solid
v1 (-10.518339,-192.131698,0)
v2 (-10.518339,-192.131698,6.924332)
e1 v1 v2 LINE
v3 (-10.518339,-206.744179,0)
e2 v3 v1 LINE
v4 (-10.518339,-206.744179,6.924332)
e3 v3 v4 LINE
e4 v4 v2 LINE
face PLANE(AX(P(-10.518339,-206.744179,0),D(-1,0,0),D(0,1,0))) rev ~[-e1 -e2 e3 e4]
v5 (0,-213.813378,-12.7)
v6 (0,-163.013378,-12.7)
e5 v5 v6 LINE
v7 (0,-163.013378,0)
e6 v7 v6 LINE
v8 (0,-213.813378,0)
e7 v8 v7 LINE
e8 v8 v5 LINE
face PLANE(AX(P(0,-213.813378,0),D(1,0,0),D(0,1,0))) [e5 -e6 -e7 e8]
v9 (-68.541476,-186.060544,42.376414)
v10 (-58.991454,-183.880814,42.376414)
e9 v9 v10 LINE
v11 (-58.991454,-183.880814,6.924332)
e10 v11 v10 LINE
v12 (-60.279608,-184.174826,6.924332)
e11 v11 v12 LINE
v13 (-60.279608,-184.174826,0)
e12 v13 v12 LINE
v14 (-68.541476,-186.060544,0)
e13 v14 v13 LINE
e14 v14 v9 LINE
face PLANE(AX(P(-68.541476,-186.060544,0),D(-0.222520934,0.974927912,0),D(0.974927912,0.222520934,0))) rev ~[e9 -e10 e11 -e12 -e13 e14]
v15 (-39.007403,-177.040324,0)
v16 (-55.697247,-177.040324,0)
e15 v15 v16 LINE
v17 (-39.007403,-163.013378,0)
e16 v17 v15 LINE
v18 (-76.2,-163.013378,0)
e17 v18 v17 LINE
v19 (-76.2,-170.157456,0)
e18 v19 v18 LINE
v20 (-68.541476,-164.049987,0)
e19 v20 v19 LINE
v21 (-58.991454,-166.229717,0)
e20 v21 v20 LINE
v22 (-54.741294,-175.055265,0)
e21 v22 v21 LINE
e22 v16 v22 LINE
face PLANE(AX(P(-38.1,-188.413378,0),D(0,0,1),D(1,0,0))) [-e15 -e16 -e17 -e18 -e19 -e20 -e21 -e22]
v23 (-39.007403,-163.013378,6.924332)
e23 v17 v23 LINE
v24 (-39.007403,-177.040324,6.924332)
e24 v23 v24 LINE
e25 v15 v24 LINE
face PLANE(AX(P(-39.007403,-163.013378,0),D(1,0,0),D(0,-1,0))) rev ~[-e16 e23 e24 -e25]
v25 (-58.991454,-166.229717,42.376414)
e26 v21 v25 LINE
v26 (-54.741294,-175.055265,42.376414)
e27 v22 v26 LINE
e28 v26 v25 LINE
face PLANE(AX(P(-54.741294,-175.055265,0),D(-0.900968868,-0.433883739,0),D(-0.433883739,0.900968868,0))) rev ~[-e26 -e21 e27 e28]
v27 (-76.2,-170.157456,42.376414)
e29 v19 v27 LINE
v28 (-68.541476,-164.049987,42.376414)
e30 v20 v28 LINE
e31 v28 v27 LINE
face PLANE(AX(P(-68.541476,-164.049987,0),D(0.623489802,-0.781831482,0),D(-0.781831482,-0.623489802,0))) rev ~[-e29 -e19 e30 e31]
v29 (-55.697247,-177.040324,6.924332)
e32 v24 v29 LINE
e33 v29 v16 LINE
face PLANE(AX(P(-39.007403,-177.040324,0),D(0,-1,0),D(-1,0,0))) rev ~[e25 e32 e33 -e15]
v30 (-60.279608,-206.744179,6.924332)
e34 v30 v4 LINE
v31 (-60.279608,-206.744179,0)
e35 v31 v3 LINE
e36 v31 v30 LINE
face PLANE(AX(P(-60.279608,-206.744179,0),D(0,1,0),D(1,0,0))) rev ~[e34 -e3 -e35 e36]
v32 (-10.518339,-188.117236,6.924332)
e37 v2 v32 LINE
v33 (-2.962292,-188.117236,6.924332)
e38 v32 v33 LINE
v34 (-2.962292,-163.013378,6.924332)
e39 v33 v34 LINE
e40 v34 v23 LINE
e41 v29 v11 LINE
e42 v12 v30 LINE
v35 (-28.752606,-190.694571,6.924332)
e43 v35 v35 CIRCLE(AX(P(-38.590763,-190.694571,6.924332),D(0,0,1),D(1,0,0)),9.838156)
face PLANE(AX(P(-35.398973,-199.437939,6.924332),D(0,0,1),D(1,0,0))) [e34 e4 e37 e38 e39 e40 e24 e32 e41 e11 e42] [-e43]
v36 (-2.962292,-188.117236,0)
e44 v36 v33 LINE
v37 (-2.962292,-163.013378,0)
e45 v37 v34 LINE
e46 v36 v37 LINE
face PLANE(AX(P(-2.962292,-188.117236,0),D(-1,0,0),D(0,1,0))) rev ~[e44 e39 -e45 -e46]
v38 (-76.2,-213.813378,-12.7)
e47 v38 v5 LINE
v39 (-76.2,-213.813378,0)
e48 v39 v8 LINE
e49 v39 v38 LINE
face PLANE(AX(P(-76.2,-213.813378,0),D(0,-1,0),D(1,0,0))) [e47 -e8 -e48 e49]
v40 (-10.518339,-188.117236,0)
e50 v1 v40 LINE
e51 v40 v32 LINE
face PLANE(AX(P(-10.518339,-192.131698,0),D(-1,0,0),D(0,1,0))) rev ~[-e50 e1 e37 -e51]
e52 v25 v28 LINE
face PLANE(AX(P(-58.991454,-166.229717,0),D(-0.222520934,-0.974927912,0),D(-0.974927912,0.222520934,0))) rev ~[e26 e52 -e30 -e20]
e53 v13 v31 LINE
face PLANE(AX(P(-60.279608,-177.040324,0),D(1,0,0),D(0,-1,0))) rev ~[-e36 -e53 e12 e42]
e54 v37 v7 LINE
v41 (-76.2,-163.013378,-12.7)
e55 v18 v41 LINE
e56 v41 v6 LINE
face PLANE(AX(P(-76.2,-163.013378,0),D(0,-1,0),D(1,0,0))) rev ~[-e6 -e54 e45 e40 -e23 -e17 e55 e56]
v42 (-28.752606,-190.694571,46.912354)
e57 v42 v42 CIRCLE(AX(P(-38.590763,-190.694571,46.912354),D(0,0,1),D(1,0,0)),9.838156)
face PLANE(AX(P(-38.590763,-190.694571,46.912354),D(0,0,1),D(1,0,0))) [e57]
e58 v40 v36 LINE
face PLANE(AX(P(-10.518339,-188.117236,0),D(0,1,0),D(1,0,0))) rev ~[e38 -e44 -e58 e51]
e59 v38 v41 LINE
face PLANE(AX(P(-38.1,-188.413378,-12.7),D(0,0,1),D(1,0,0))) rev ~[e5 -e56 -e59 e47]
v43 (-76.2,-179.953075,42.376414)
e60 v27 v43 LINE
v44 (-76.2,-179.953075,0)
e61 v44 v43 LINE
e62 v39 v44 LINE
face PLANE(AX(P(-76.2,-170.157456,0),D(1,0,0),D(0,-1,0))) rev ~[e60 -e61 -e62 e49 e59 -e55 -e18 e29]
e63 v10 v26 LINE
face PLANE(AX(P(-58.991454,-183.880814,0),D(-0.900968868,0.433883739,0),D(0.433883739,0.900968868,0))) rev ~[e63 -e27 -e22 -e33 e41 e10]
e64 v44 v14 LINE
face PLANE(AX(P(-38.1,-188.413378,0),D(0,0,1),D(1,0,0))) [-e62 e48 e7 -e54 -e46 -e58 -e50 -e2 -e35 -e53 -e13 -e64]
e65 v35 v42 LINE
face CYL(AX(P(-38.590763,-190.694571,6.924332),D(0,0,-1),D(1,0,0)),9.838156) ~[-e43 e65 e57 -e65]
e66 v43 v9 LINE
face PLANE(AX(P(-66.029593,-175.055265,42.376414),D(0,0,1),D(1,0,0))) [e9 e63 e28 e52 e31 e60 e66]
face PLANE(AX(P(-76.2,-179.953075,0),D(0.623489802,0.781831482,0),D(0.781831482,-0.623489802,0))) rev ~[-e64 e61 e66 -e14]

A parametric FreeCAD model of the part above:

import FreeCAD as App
import Part
import Sketcher

V = App.Vector
Q = App.Units.Quantity

doc = App.newDocument("Part")
params = doc.addObject("Spreadsheet::Sheet", "Params")
for row, (alias, value) in enumerate([
    ("sketch1_width", "3 in"),
    ("sketch1_height", "2 in"),
    ("pad1_length", "0.5 in"),
    ("pad2_length", "6.924332 mm"),
    ("pad3_length", "39.988022 mm"),
    ("pad4_length", "42.376414 mm"),
], start=1):
    params.set(f"A{row}", alias)
    params.set(f"B{row}", "=" + value)
    params.setAlias(f"B{row}", alias)

body = doc.addObject("PartDesign::Body", "Body")

sketch1 = doc.addObject("Sketcher::SketchObject", "Sketch")
body.addObject(sketch1)
sketch1.AttachmentSupport = (doc.XY_Plane, [""])
sketch1.MapMode = "FlatFace"
sketch1.addGeometry([
    Part.LineSegment(V(-76, -163, 0), V(-76, -214, 0)),
    Part.LineSegment(V(-76, -214, 0), V(0, -214, 0)),
    Part.LineSegment(V(0, -214, 0), V(0, -163, 0)),
    Part.LineSegment(V(0, -163, 0), V(-76, -163, 0)),
], False)
sketch1.addConstraint([
    Sketcher.Constraint("Coincident", 0, 2, 1, 1),
    Sketcher.Constraint("Coincident", 1, 2, 2, 1),
    Sketcher.Constraint("Coincident", 2, 2, 3, 1),
    Sketcher.Constraint("Coincident", 3, 2, 0, 1),
    Sketcher.Constraint("Vertical", 0),
    Sketcher.Constraint("Horizontal", 1),
    Sketcher.Constraint("Vertical", 2),
    Sketcher.Constraint("Horizontal", 3),
    Sketcher.Constraint("PointOnObject", 1, 2, -2),
    Sketcher.Constraint("DistanceX", 1, 1, 1, 2, Q("3 in")),
    Sketcher.Constraint("DistanceY", 0, 2, 0, 1, Q("2 in")),
    Sketcher.Constraint("DistanceY", 0, 2, -1, 1, 213.813378),
])
sketch1.setExpression("Constraints[9]", "Params.sketch1_width")
sketch1.setExpression("Constraints[10]", "Params.sketch1_height")
pad1 = doc.addObject("PartDesign::Pad", "Pad")
body.addObject(pad1)
pad1.Profile = sketch1
pad1.setExpression("Length", "Params.pad1_length")
pad1.Reversed = True

sketch2 = doc.addObject("Sketcher::SketchObject", "Sketch001")
body.addObject(sketch2)
sketch2.AttachmentSupport = (doc.XY_Plane, [""])
sketch2.MapMode = "FlatFace"
sketch2.addGeometry([
    Part.LineSegment(V(-60.3, -206.7, 0), V(-10.5, -206.7, 0)),
    Part.LineSegment(V(-10.5, -206.7, 0), V(-10.5, -192.1, 0)),
    Part.LineSegment(V(-10.5, -192.1, 0), V(-10.5, -188.1, 0)),
    Part.LineSegment(V(-10.5, -188.1, 0), V(-3, -188.1, 0)),
    Part.LineSegment(V(-3, -188.1, 0), V(-3, -163, 0)),
    Part.LineSegment(V(-3, -163, 0), V(-39, -163, 0)),
    Part.LineSegment(V(-39, -163, 0), V(-39, -177, 0)),
    Part.LineSegment(V(-39, -177, 0), V(-60.3, -177, 0)),
    Part.LineSegment(V(-60.3, -177, 0), V(-60.3, -206.7, 0)),
], False)
sketch2.addConstraint([
    Sketcher.Constraint("Coincident", 0, 2, 1, 1),
    Sketcher.Constraint("Coincident", 1, 2, 2, 1),
    Sketcher.Constraint("Coincident", 2, 2, 3, 1),
    Sketcher.Constraint("Coincident", 3, 2, 4, 1),
    Sketcher.Constraint("Coincident", 4, 2, 5, 1),
    Sketcher.Constraint("Coincident", 5, 2, 6, 1),
    Sketcher.Constraint("Coincident", 6, 2, 7, 1),
    Sketcher.Constraint("Coincident", 7, 2, 8, 1),
    Sketcher.Constraint("Coincident", 8, 2, 0, 1),
    Sketcher.Constraint("Horizontal", 0),
    Sketcher.Constraint("Vertical", 1),
    Sketcher.Constraint("Vertical", 2),
    Sketcher.Constraint("Horizontal", 3),
    Sketcher.Constraint("Vertical", 4),
    Sketcher.Constraint("Horizontal", 5),
    Sketcher.Constraint("Vertical", 6),
    Sketcher.Constraint("Horizontal", 7),
    Sketcher.Constraint("Vertical", 8),
    Sketcher.Constraint("DistanceX", 0, 1, 0, 2, 49.761269),
    Sketcher.Constraint("DistanceX", 5, 2, 5, 1, 36.045111),
    Sketcher.Constraint("DistanceY", 1, 1, 1, 2, 14.612481),
    Sketcher.Constraint("DistanceY", 4, 1, 4, 2, 25.103858),
    Sketcher.Constraint("DistanceY", 1, 2, -1, 1, 192.131698),
    Sketcher.Constraint("DistanceY", 0, 2, 4, 2, 43.730801),
    Sketcher.Constraint("DistanceX", 3, 1, 3, 2, 7.556047),
    Sketcher.Constraint("DistanceY", 6, 2, 6, 1, 14.026946),
    Sketcher.Constraint("DistanceX", 0, 2, -1, 1, 10.518339),
])
pad2 = doc.addObject("PartDesign::Pad", "Pad001")
body.addObject(pad2)
pad2.Profile = sketch2
pad2.setExpression("Length", "Params.pad2_length")

sketch3 = doc.addObject("Sketcher::SketchObject", "Sketch002")
body.addObject(sketch3)
sketch3.AttachmentSupport = (doc.XY_Plane, [""])
sketch3.MapMode = "FlatFace"
sketch3.AttachmentOffset = App.Placement(V(0, 0, 6.924332), App.Rotation())
sketch3.addGeometry(Part.Circle(V(-39, -191, 0), V(0, 0, 1), 10), False)
sketch3.addConstraint([
    Sketcher.Constraint("Diameter", 0, 19.676313),
    Sketcher.Constraint("DistanceY", 0, 3, -1, 1, 190.694571),
    Sketcher.Constraint("DistanceX", 0, 3, -1, 1, 38.590763),
])
pad3 = doc.addObject("PartDesign::Pad", "Pad002")
body.addObject(pad3)
pad3.Profile = sketch3
pad3.setExpression("Length", "Params.pad3_length")

sketch4 = doc.addObject("Sketcher::SketchObject", "Sketch003")
body.addObject(sketch4)
sketch4.AttachmentSupport = (doc.XY_Plane, [""])
sketch4.MapMode = "FlatFace"
sketch4.addGeometry([
    Part.LineSegment(V(-76, -170, 0), V(-76, -180, 0)),
    Part.LineSegment(V(-76, -180, 0), V(-69, -186, 0)),
    Part.LineSegment(V(-69, -186, 0), V(-59, -184, 0)),
    Part.LineSegment(V(-59, -184, 0), V(-55, -175, 0)),
    Part.LineSegment(V(-55, -175, 0), V(-59, -166, 0)),
    Part.LineSegment(V(-59, -166, 0), V(-69, -164, 0)),
    Part.LineSegment(V(-69, -164, 0), V(-76, -170, 0)),
], False)
sketch4.addConstraint([
    Sketcher.Constraint("Coincident", 0, 2, 1, 1),
    Sketcher.Constraint("Coincident", 1, 2, 2, 1),
    Sketcher.Constraint("Coincident", 2, 2, 3, 1),
    Sketcher.Constraint("Coincident", 3, 2, 4, 1),
    Sketcher.Constraint("Coincident", 4, 2, 5, 1),
    Sketcher.Constraint("Coincident", 5, 2, 6, 1),
    Sketcher.Constraint("Coincident", 6, 2, 0, 1),
    Sketcher.Constraint("Vertical", 0),
    Sketcher.Constraint("Vertical", 2, 2, 4, 2),
    Sketcher.Constraint("Vertical", 1, 2, 5, 2),
    Sketcher.Constraint("Equal", 1, 2),
    Sketcher.Constraint("Equal", 2, 3),
    Sketcher.Constraint("Equal", 3, 4),
    Sketcher.Constraint("Equal", 4, 5),
    Sketcher.Constraint("Equal", 5, 6),
    Sketcher.Constraint("DistanceX", 0, 2, -1, 1, Q("3 in")),
    Sketcher.Constraint("DistanceY", 0, 2, 0, 1, 9.795619),
    Sketcher.Constraint("Distance", 1, 9.795619),
    Sketcher.Constraint("DistanceY", 1, 2, 0, 2, 6.107469),
    Sketcher.Constraint("DistanceY", 1, 2, 2, 2, 2.17973),
    Sketcher.Constraint("DistanceY", 0, 2, -1, 1, 179.953075),
])
pad4 = doc.addObject("PartDesign::Pad", "Pad003")
body.addObject(pad4)
pad4.Profile = sketch4
pad4.setExpression("Length", "Params.pad4_length")

doc.recompute()
